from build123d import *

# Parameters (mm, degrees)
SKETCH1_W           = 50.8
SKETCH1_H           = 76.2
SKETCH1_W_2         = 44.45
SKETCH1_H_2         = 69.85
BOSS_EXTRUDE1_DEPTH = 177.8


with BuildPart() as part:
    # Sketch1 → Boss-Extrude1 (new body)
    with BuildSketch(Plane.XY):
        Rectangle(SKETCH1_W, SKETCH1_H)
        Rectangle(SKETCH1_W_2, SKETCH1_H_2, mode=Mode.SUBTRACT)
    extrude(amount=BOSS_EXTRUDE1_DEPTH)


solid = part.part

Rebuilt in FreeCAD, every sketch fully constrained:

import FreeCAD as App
import Part
import Sketcher
from FreeCAD import Vector
Q = App.Units.Quantity


def add_polygon(sketch, points):
    """Adds a closed chain of lines whose ends are joined by coincident constraints."""
    first, n = sketch.GeometryCount, len(points)
    for a, b in zip(points, points[1:] + points[:1]):
        sketch.addGeometry(Part.LineSegment(App.Vector(*a, 0), App.Vector(*b, 0)), False)
    for i in range(n):
        sketch.addConstraint(Sketcher.Constraint("Coincident", first + i, 2, first + (i + 1) % n, 1))

doc = App.newDocument("Part")
body = doc.addObject("PartDesign::Body", "Body")

# Sketch on XY plane
sketch1 = doc.addObject("Sketcher::SketchObject", "Sketch")
body.addObject(sketch1)
sketch1.AttachmentSupport = (doc.XY_Plane, [""])
sketch1.MapMode = "FlatFace"
add_polygon(sketch1, [(-25, 38), (-25, -38), (25, -38), (25, 38)])  # lines 0-3
add_polygon(sketch1, [(22, -35), (-22, -35), (-22, 35), (22, 35)])  # lines 4-7
sketch1.addConstraint([
    Sketcher.Constraint("Vertical", 0),
    Sketcher.Constraint("Horizontal", 1),
    Sketcher.Constraint("Vertical", 2),
    Sketcher.Constraint("Horizontal", 3),
    Sketcher.Constraint("Horizontal", 4),
    Sketcher.Constraint("Vertical", 5),
    Sketcher.Constraint("Horizontal", 6),
    Sketcher.Constraint("Vertical", 7),
    Sketcher.Constraint("Symmetric", 0, 2, 2, 2, -1, 1),
    Sketcher.Constraint("Symmetric", 4, 2, 6, 2, -1, 1),
    Sketcher.Constraint("DistanceX", 1, 1, 1, 2, Q("2 in")),
    Sketcher.Constraint("DistanceY", 0, 2, 0, 1, Q("3 in")),
    Sketcher.Constraint("DistanceX", 4, 2, 4, 1, Q("1.75 in")),
    Sketcher.Constraint("DistanceY", 5, 1, 5, 2, Q("2.75 in")),
])
pad1 = doc.addObject("PartDesign::Pad", "Pad")
body.addObject(pad1)
pad1.Profile = sketch1
pad1.Length = Q("7 in")

doc.recompute()
